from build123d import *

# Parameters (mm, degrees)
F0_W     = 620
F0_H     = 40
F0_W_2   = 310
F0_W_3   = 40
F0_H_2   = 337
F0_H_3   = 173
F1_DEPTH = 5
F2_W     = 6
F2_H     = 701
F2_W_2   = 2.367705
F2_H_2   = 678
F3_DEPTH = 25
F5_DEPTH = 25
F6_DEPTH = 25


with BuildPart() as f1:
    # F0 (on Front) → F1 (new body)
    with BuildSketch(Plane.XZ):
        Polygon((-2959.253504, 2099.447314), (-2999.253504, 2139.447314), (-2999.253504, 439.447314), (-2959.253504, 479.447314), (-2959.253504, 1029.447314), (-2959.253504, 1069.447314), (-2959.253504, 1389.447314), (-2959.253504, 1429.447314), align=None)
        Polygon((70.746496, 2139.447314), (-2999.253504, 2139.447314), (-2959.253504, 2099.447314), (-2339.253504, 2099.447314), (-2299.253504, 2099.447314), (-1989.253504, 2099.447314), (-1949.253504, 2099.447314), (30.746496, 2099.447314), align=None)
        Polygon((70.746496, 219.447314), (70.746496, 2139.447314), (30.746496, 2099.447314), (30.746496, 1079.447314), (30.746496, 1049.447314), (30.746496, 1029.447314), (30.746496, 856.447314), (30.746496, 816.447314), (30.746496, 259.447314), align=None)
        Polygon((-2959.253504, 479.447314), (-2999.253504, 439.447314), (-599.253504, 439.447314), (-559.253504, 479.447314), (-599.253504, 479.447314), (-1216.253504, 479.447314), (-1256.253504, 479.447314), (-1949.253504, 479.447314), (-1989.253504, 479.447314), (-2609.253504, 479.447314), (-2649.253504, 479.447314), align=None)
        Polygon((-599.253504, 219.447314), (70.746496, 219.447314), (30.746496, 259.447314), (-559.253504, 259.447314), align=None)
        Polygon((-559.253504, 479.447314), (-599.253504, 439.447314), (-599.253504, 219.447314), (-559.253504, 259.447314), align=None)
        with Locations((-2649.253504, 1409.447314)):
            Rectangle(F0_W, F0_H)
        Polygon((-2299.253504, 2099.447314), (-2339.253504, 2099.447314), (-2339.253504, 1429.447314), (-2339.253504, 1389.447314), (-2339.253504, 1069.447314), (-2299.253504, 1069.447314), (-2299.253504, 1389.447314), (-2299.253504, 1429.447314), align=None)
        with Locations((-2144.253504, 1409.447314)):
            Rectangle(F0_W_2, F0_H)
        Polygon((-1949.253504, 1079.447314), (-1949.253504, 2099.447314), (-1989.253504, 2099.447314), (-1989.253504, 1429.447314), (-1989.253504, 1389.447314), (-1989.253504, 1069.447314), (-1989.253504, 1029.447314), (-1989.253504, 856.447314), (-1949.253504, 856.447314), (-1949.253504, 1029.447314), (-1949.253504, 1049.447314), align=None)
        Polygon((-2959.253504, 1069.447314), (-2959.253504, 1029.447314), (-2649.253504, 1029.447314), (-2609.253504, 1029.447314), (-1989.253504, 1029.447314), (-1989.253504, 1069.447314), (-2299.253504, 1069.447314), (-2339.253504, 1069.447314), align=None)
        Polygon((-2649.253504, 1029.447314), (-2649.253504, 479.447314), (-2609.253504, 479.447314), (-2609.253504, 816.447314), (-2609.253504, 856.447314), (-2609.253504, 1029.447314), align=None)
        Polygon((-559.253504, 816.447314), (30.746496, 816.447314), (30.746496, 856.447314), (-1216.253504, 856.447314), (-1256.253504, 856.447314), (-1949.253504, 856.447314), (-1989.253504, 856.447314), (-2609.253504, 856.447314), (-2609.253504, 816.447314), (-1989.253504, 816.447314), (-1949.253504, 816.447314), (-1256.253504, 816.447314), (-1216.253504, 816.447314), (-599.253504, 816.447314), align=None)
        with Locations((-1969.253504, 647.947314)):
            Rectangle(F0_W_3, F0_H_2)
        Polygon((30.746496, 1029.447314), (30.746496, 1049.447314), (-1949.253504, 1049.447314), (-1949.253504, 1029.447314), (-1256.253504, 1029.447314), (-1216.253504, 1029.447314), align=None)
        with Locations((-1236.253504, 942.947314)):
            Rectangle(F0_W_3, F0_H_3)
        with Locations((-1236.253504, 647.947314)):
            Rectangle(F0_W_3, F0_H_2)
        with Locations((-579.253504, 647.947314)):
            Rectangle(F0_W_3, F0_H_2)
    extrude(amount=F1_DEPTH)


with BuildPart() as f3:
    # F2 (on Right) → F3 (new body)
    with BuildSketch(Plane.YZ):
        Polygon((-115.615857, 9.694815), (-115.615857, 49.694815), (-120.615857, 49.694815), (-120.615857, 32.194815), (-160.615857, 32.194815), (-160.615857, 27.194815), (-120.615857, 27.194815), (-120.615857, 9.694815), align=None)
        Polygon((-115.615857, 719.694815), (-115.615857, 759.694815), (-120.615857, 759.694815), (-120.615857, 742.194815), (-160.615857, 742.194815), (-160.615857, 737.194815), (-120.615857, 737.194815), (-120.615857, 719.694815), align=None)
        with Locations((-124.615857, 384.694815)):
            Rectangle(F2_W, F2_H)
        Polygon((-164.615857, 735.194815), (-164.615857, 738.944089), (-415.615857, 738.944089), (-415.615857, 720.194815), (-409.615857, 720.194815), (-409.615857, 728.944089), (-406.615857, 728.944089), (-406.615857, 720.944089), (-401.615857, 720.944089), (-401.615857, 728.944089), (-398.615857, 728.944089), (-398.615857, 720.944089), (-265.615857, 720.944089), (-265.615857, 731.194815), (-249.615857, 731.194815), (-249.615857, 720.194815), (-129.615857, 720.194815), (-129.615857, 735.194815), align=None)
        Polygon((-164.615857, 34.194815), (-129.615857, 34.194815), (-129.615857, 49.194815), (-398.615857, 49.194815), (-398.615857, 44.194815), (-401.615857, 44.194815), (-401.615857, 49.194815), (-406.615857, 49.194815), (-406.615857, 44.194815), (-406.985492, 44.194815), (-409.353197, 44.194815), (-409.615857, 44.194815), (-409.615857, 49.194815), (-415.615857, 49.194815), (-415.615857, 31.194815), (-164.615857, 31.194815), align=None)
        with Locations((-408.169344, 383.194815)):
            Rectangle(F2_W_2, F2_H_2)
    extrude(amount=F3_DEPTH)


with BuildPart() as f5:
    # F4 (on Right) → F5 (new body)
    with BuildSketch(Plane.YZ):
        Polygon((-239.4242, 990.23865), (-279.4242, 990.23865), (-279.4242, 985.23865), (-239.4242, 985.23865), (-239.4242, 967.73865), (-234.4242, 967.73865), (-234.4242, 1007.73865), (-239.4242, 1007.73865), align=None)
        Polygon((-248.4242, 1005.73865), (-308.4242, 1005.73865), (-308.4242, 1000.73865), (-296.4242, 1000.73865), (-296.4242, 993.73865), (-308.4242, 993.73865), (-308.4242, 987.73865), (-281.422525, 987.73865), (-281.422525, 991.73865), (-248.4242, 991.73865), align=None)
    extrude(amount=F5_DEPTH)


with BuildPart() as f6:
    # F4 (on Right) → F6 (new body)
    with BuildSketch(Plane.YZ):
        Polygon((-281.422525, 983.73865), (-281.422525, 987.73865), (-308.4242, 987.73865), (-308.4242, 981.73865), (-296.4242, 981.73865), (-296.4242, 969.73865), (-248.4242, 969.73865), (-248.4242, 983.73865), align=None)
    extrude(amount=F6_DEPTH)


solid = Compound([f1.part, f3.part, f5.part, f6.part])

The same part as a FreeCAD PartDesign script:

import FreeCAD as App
import Part
import Sketcher

doc = App.newDocument("Part")
body = doc.addObject("PartDesign::Body", "Body")

# Sketch on XZ plane
sketch1 = body.newObject("Sketcher::SketchObject", "Sketch")
sketch1.AttachmentSupport = (doc.getObject("XZ_Plane"), [""])
sketch1.MapMode = "FlatFace"
sketch1.addGeometry([
    Part.LineSegment(App.Vector(-2999.253504, 2139.447314, 0), App.Vector(-2999.253504, 439.447314, 0)),  # 0
    Part.LineSegment(App.Vector(-2999.253504, 439.447314, 0), App.Vector(-599.253504, 439.447314, 0)),  # 1
    Part.LineSegment(App.Vector(-599.253504, 439.447314, 0), App.Vector(-599.253504, 219.447314, 0)),  # 2
    Part.LineSegment(App.Vector(-599.253504, 219.447314, 0), App.Vector(70.746496, 219.447314, 0)),  # 3
    Part.LineSegment(App.Vector(70.746496, 219.447314, 0), App.Vector(70.746496, 2139.447314, 0)),  # 4
    Part.LineSegment(App.Vector(70.746496, 2139.447314, 0), App.Vector(-2999.253504, 2139.447314, 0)),  # 5
    Part.LineSegment(App.Vector(-599.253504, 479.447314, 0), App.Vector(-1216.253504, 479.447314, 0)),  # 6
    Part.LineSegment(App.Vector(-1216.253504, 479.447314, 0), App.Vector(-1216.253504, 816.447314, 0)),  # 7
    Part.LineSegment(App.Vector(-1216.253504, 816.447314, 0), App.Vector(-599.253504, 816.447314, 0)),  # 8
    Part.LineSegment(App.Vector(-599.253504, 816.447314, 0), App.Vector(-599.253504, 479.447314, 0)),  # 9
    Part.LineSegment(App.Vector(-559.253504, 816.447314, 0), App.Vector(30.746496, 816.447314, 0)),  # 10
    Part.LineSegment(App.Vector(30.746496, 816.447314, 0), App.Vector(30.746496, 259.447314, 0)),  # 11
    Part.LineSegment(App.Vector(30.746496, 259.447314, 0), App.Vector(-559.253504, 259.447314, 0)),  # 12
    Part.LineSegment(App.Vector(-559.253504, 259.447314, 0), App.Vector(-559.253504, 816.447314, 0)),  # 13
    Part.LineSegment(App.Vector(-1256.253504, 479.447314, 0), App.Vector(-1949.253504, 479.447314, 0)),  # 14
    Part.LineSegment(App.Vector(-1949.253504, 479.447314, 0), App.Vector(-1949.253504, 816.447314, 0)),  # 15
    Part.LineSegment(App.Vector(-1949.253504, 816.447314, 0), App.Vector(-1256.253504, 816.447314, 0)),  # 16
    Part.LineSegment(App.Vector(-1256.253504, 816.447314, 0), App.Vector(-1256.253504, 479.447314, 0)),  # 17
    Part.LineSegment(App.Vector(-1989.253504, 479.447314, 0), App.Vector(-2609.253504, 479.447314, 0)),  # 18
    Part.LineSegment(App.Vector(-2609.253504, 479.447314, 0), App.Vector(-2609.253504, 816.447314, 0)),  # 19
    Part.LineSegment(App.Vector(-2609.253504, 816.447314, 0), App.Vector(-1989.253504, 816.447314, 0)),  # 20
    Part.LineSegment(App.Vector(-1989.253504, 816.447314, 0), App.Vector(-1989.253504, 479.447314, 0)),  # 21
    Part.LineSegment(App.Vector(-2609.253504, 856.447314, 0), App.Vector(-2609.253504, 1029.447314, 0)),  # 22
    Part.LineSegment(App.Vector(-2609.253504, 1029.447314, 0), App.Vector(-1989.253504, 1029.447314, 0)),  # 23
    Part.LineSegment(App.Vector(-1989.253504, 1029.447314, 0), App.Vector(-1989.253504, 856.447314, 0)),  # 24
    Part.LineSegment(App.Vector(-1989.253504, 856.447314, 0), App.Vector(-2609.253504, 856.447314, 0)),  # 25
    Part.LineSegment(App.Vector(-1949.253504, 856.447314, 0), App.Vector(-1949.253504, 1029.447314, 0)),  # 26
    Part.LineSegment(App.Vector(-1949.253504, 1029.447314, 0), App.Vector(-1256.253504, 1029.447314, 0)),  # 27
    Part.LineSegment(App.Vector(-1256.253504, 1029.447314, 0), App.Vector(-1256.253504, 856.447314, 0)),  # 28
    Part.LineSegment(App.Vector(-1256.253504, 856.447314, 0), App.Vector(-1949.253504, 856.447314, 0)),  # 29
    Part.LineSegment(App.Vector(-1216.253504, 1029.447314, 0), App.Vector(30.746496, 1029.447314, 0)),  # 30
    Part.LineSegment(App.Vector(30.746496, 1029.447314, 0), App.Vector(30.746496, 856.447314, 0)),  # 31
    Part.LineSegment(App.Vector(30.746496, 856.447314, 0), App.Vector(-1216.253504, 856.447314, 0)),  # 32
    Part.LineSegment(App.Vector(-1216.253504, 856.447314, 0), App.Vector(-1216.253504, 1029.447314, 0)),  # 33
    Part.LineSegment(App.Vector(-1949.253504, 1049.447314, 0), App.Vector(-1949.253504, 2099.447314, 0)),  # 34
    Part.LineSegment(App.Vector(-1949.253504, 2099.447314, 0), App.Vector(30.746496, 2099.447314, 0)),  # 35
    Part.LineSegment(App.Vector(30.746496, 2099.447314, 0), App.Vector(30.746496, 1049.447314, 0)),  # 36
    Part.LineSegment(App.Vector(30.746496, 1049.447314, 0), App.Vector(-1949.253504, 1049.447314, 0)),  # 37
    Part.LineSegment(App.Vector(-2649.253504, 479.447314, 0), App.Vector(-2959.253504, 479.447314, 0)),  # 38
    Part.LineSegment(App.Vector(-2959.253504, 479.447314, 0), App.Vector(-2959.253504, 1029.447314, 0)),  # 39
    Part.LineSegment(App.Vector(-2959.253504, 1029.447314, 0), App.Vector(-2649.253504, 1029.447314, 0)),  # 40
    Part.LineSegment(App.Vector(-2649.253504, 1029.447314, 0), App.Vector(-2649.253504, 479.447314, 0)),  # 41
    Part.LineSegment(App.Vector(-2959.253504, 1069.447314, 0), App.Vector(-2959.253504, 1389.447314, 0)),  # 42
    Part.LineSegment(App.Vector(-2959.253504, 1389.447314, 0), App.Vector(-2339.253504, 1389.447314, 0)),  # 43
    Part.LineSegment(App.Vector(-2339.253504, 1389.447314, 0), App.Vector(-2339.253504, 1069.447314, 0)),  # 44
    Part.LineSegment(App.Vector(-2339.253504, 1069.447314, 0), App.Vector(-2959.253504, 1069.447314, 0)),  # 45
    Part.LineSegment(App.Vector(-2299.253504, 1069.447314, 0), App.Vector(-2299.253504, 1389.447314, 0)),  # 46
    Part.LineSegment(App.Vector(-2299.253504, 1389.447314, 0), App.Vector(-1989.253504, 1389.447314, 0)),  # 47
    Part.LineSegment(App.Vector(-1989.253504, 1389.447314, 0), App.Vector(-1989.253504, 1069.447314, 0)),  # 48
    Part.LineSegment(App.Vector(-1989.253504, 1069.447314, 0), App.Vector(-2299.253504, 1069.447314, 0)),  # 49
    Part.LineSegment(App.Vector(-1989.253504, 1429.447314, 0), App.Vector(-2299.253504, 1429.447314, 0)),  # 50
    Part.LineSegment(App.Vector(-2299.253504, 1429.447314, 0), App.Vector(-2299.253504, 2099.447314, 0)),  # 51
    Part.LineSegment(App.Vector(-2299.253504, 2099.447314, 0), App.Vector(-1989.253504, 2099.447314, 0)),  # 52
    Part.LineSegment(App.Vector(-1989.253504, 2099.447314, 0), App.Vector(-1989.253504, 1429.447314, 0)),  # 53
    Part.LineSegment(App.Vector(-2339.253504, 1429.447314, 0), App.Vector(-2959.253504, 1429.447314, 0)),  # 54
    Part.LineSegment(App.Vector(-2959.253504, 1429.447314, 0), App.Vector(-2959.253504, 2099.447314, 0)),  # 55
    Part.LineSegment(App.Vector(-2959.253504, 2099.447314, 0), App.Vector(-2339.253504, 2099.447314, 0)),  # 56
    Part.LineSegment(App.Vector(-2339.253504, 2099.447314, 0), App.Vector(-2339.253504, 1429.447314, 0)),  # 57
], False)
sketch1.addConstraint([
    Sketcher.Constraint("Coincident", 0, 2, 1, 1),
    Sketcher.Constraint("Coincident", 1, 2, 2, 1),
    Sketcher.Constraint("Coincident", 2, 2, 3, 1),
    Sketcher.Constraint("Coincident", 3, 2, 4, 1),
    Sketcher.Constraint("Coincident", 4, 2, 5, 1),
    Sketcher.Constraint("Coincident", 5, 2, 0, 1),
    Sketcher.Constraint("Coincident", 6, 2, 7, 1),
    Sketcher.Constraint("Coincident", 7, 2, 8, 1),
    Sketcher.Constraint("Coincident", 8, 2, 9, 1),
    Sketcher.Constraint("Coincident", 9, 2, 6, 1),
    Sketcher.Constraint("Coincident", 10, 2, 11, 1),
    Sketcher.Constraint("Coincident", 11, 2, 12, 1),
    Sketcher.Constraint("Coincident", 12, 2, 13, 1),
    Sketcher.Constraint("Coincident", 13, 2, 10, 1),
    Sketcher.Constraint("Coincident", 14, 2, 15, 1),
    Sketcher.Constraint("Coincident", 15, 2, 16, 1),
    Sketcher.Constraint("Coincident", 16, 2, 17, 1),
    Sketcher.Constraint("Coincident", 17, 2, 14, 1),
    Sketcher.Constraint("Coincident", 18, 2, 19, 1),
    Sketcher.Constraint("Coincident", 19, 2, 20, 1),
    Sketcher.Constraint("Coincident", 20, 2, 21, 1),
    Sketcher.Constraint("Coincident", 21, 2, 18, 1),
    Sketcher.Constraint("Coincident", 22, 2, 23, 1),
    Sketcher.Constraint("Coincident", 23, 2, 24, 1),
    Sketcher.Constraint("Coincident", 24, 2, 25, 1),
    Sketcher.Constraint("Coincident", 25, 2, 22, 1),
    Sketcher.Constraint("Coincident", 26, 2, 27, 1),
    Sketcher.Constraint("Coincident", 27, 2, 28, 1),
    Sketcher.Constraint("Coincident", 28, 2, 29, 1),
    Sketcher.Constraint("Coincident", 29, 2, 26, 1),
    Sketcher.Constraint("Coincident", 30, 2, 31, 1),
    Sketcher.Constraint("Coincident", 31, 2, 32, 1),
    Sketcher.Constraint("Coincident", 32, 2, 33, 1),
    Sketcher.Constraint("Coincident", 33, 2, 30, 1),
    Sketcher.Constraint("Coincident", 34, 2, 35, 1),
    Sketcher.Constraint("Coincident", 35, 2, 36, 1),
    Sketcher.Constraint("Coincident", 36, 2, 37, 1),
    Sketcher.Constraint("Coincident", 37, 2, 34, 1),
    Sketcher.Constraint("Coincident", 38, 2, 39, 1),
    Sketcher.Constraint("Coincident", 39, 2, 40, 1),
    Sketcher.Constraint("Coincident", 40, 2, 41, 1),
    Sketcher.Constraint("Coincident", 41, 2, 38, 1),
    Sketcher.Constraint("Coincident", 42, 2, 43, 1),
    Sketcher.Constraint("Coincident", 43, 2, 44, 1),
    Sketcher.Constraint("Coincident", 44, 2, 45, 1),
    Sketcher.Constraint("Coincident", 45, 2, 42, 1),
    Sketcher.Constraint("Coincident", 46, 2, 47, 1),
    Sketcher.Constraint("Coincident", 47, 2, 48, 1),
    Sketcher.Constraint("Coincident", 48, 2, 49, 1),
    Sketcher.Constraint("Coincident", 49, 2, 46, 1),
    Sketcher.Constraint("Coincident", 50, 2, 51, 1),
    Sketcher.Constraint("Coincident", 51, 2, 52, 1),
    Sketcher.Constraint("Coincident", 52, 2, 53, 1),
    Sketcher.Constraint("Coincident", 53, 2, 50, 1),
    Sketcher.Constraint("Coincident", 54, 2, 55, 1),
    Sketcher.Constraint("Coincident", 55, 2, 56, 1),
    Sketcher.Constraint("Coincident", 56, 2, 57, 1),
    Sketcher.Constraint("Coincident", 57, 2, 54, 1),
    Sketcher.Constraint("Vertical", 0),
    Sketcher.Constraint("Horizontal", 1),
    Sketcher.Constraint("Vertical", 2),
    Sketcher.Constraint("Horizontal", 3),
    Sketcher.Constraint("Vertical", 4),
    Sketcher.Constraint("Horizontal", 5),
    Sketcher.Constraint("Horizontal", 6),
    Sketcher.Constraint("Vertical", 7),
    Sketcher.Constraint("Horizontal", 8),
    Sketcher.Constraint("Vertical", 9),
    Sketcher.Constraint("Horizontal", 10),
    Sketcher.Constraint("Vertical", 11),
    Sketcher.Constraint("Horizontal", 12),
    Sketcher.Constraint("Vertical", 13),
    Sketcher.Constraint("Horizontal", 14),
    Sketcher.Constraint("Vertical", 15),
    Sketcher.Constraint("Horizontal", 16),
    Sketcher.Constraint("Vertical", 17),
    Sketcher.Constraint("Horizontal", 18),
    Sketcher.Constraint("Vertical", 19),
    Sketcher.Constraint("Horizontal", 20),
    Sketcher.Constraint("Vertical", 21),
    Sketcher.Constraint("Vertical", 22),
    Sketcher.Constraint("Horizontal", 23),
    Sketcher.Constraint("Vertical", 24),
    Sketcher.Constraint("Horizontal", 25),
    Sketcher.Constraint("Vertical", 26),
    Sketcher.Constraint("Horizontal", 27),
    Sketcher.Constraint("Vertical", 28),
    Sketcher.Constraint("Horizontal", 29),
    Sketcher.Constraint("Horizontal", 30),
    Sketcher.Constraint("Vertical", 31),
    Sketcher.Constraint("Horizontal", 32),
    Sketcher.Constraint("Vertical", 33),
    Sketcher.Constraint("Vertical", 34),
    Sketcher.Constraint("Horizontal", 35),
    Sketcher.Constraint("Vertical", 36),
    Sketcher.Constraint("Horizontal", 37),
    Sketcher.Constraint("Horizontal", 38),
    Sketcher.Constraint("Vertical", 39),
    Sketcher.Constraint("Horizontal", 40),
    Sketcher.Constraint("Vertical", 41),
    Sketcher.Constraint("Vertical", 42),
    Sketcher.Constraint("Horizontal", 43),
    Sketcher.Constraint("Vertical", 44),
    Sketcher.Constraint("Horizontal", 45),
    Sketcher.Constraint("Vertical", 46),
    Sketcher.Constraint("Horizontal", 47),
    Sketcher.Constraint("Vertical", 48),
    Sketcher.Constraint("Horizontal", 49),
    Sketcher.Constraint("Horizontal", 50),
    Sketcher.Constraint("Vertical", 51),
    Sketcher.Constraint("Horizontal", 52),
    Sketcher.Constraint("Vertical", 53),
    Sketcher.Constraint("Horizontal", 54),
    Sketcher.Constraint("Vertical", 55),
    Sketcher.Constraint("Horizontal", 56),
    Sketcher.Constraint("Vertical", 57),
    Sketcher.Constraint("Horizontal", 8, 2, 10, 2),
    Sketcher.Constraint("Horizontal", 9, 2, 14, 2),
    Sketcher.Constraint("Horizontal", 13, 2, 15, 2),
    Sketcher.Constraint("Horizontal", 17, 2, 18, 2),
    Sketcher.Constraint("Horizontal", 16, 2, 19, 2),
    Sketcher.Constraint("Horizontal", 23, 2, 26, 2),
    Sketcher.Constraint("Horizontal", 25, 2, 28, 2),
    Sketcher.Constraint("Horizontal", 27, 2, 30, 2),
    Sketcher.Constraint("Horizontal", 29, 2, 31, 2),
    Sketcher.Constraint("Horizontal", 21, 2, 38, 2),
    Sketcher.Constraint("Horizontal", 33, 2, 39, 2),
    Sketcher.Constraint("Horizontal", 43, 2, 46, 2),
    Sketcher.Constraint("Horizontal", 45, 2, 48, 2),
    Sketcher.Constraint("Horizontal", 35, 2, 51, 2),
    Sketcher.Constraint("Horizontal", 53, 2, 54, 2),
    Sketcher.Constraint("Horizontal", 52, 2, 55, 2),
    Sketcher.Constraint("Vertical", 2, 2, 8, 2),
    Sketcher.Constraint("Vertical", 19, 2, 22, 2),
    Sketcher.Constraint("Vertical", 21, 2, 23, 2),
    Sketcher.Constraint("Vertical", 15, 2, 26, 2),
    Sketcher.Constraint("Vertical", 17, 2, 27, 2),
    Sketcher.Constraint("Vertical", 11, 2, 30, 2),
    Sketcher.Constraint("Vertical", 7, 2, 32, 2),
    Sketcher.Constraint("Vertical", 29, 2, 34, 2),
    Sketcher.Constraint("Vertical", 31, 2, 35, 2),
    Sketcher.Constraint("Vertical", 39, 2, 42, 2),
    Sketcher.Constraint("Vertical", 24, 2, 47, 2),
    Sketcher.Constraint("Vertical", 49, 2, 50, 2),
    Sketcher.Constraint("Vertical", 48, 2, 52, 2),
    Sketcher.Constraint("Vertical", 45, 2, 54, 2),
    Sketcher.Constraint("Vertical", 44, 2, 56, 2),
    Sketcher.Constraint("Equal", 25, 43),
    Sketcher.Constraint("Equal", 40, 47),
    Sketcher.Constraint("Equal", 3, 51),
    Sketcher.Constraint("DistanceX", 1, 1, 1, 2, 2400.0),
    Sketcher.Constraint("DistanceX", 3, 1, 3, 2, 670.0),
    Sketcher.Constraint("DistanceX", 6, 2, 6, 1, 617.0),
    Sketcher.Constraint("DistanceX", 10, 1, 10, 2, 590.0),
    Sketcher.Constraint("DistanceX", 14, 2, 14, 1, 693.0),
    Sketcher.Constraint("DistanceX", 18, 2, 18, 1, 620.0),
    Sketcher.Constraint("DistanceX", 30, 1, 30, 2, 1247.0),
    Sketcher.Constraint("DistanceX", 35, 1, 35, 2, 1980.0),
    Sketcher.Constraint("DistanceX", 38, 2, 38, 1, 310.0),
    Sketcher.Constraint("DistanceY", 0, 2, 0, 1, 1700.0),
    Sketcher.Constraint("DistanceY", 2, 2, 2, 1, 220.0),
    Sketcher.Constraint("DistanceY", 7, 1, 7, 2, 337.0),
    Sketcher.Constraint("DistanceY", 11, 2, 11, 1, 557.0),
    Sketcher.Constraint("DistanceY", 22, 1, 22, 2, 173.0),
    Sketcher.Constraint("DistanceY", 34, 1, 34, 2, 1050.0),
    Sketcher.Constraint("DistanceY", 39, 1, 39, 2, 550.0),
    Sketcher.Constraint("DistanceY", 42, 1, 42, 2, 320.0),
    Sketcher.Constraint("DistanceY", 1, 2, 6, 2, 40.0),
    Sketcher.Constraint("DistanceX", 0, 2, 18, 2, 390.0),
    Sketcher.Constraint("DistanceY", 34, 2, 5, 2, 40.0),
    Sketcher.Constraint("DistanceX", 0, 2, 38, 2, 40.0),
    Sketcher.Constraint("DistanceY", 39, 2, 42, 2, 360.0),
    Sketcher.Constraint("DistanceX", 0, 2, -1, 1, 2999.253504),
    Sketcher.Constraint("DistanceY", -1, 1, 0, 2, 439.447314),
])
pad1 = body.newObject("PartDesign::Pad", "Pad")
pad1.Profile = sketch1
pad1.Length = 5
body2 = doc.addObject("PartDesign::Body", "Body001")
body2.AllowCompound = True

# Sketch on YZ plane
sketch2 = body2.newObject("Sketcher::SketchObject", "Sketch001")
sketch2.AttachmentSupport = (doc.getObject("YZ_Plane001"), [""])
sketch2.MapMode = "FlatFace"
sketch2.addGeometry([
    Part.LineSegment(App.Vector(-115.615857, 9.694815, 0), App.Vector(-115.615857, 49.694815, 0)),  # 0
    Part.LineSegment(App.Vector(-115.615857, 49.694815, 0), App.Vector(-120.615857, 49.694815, 0)),  # 1
    Part.LineSegment(App.Vector(-120.615857, 49.694815, 0), App.Vector(-120.615857, 32.194815, 0)),  # 2
    Part.LineSegment(App.Vector(-120.615857, 32.194815, 0), App.Vector(-160.615857, 32.194815, 0)),  # 3
    Part.LineSegment(App.Vector(-160.615857, 32.194815, 0), App.Vector(-160.615857, 27.194815, 0)),  # 4
    Part.LineSegment(App.Vector(-160.615857, 27.194815, 0), App.Vector(-120.615857, 27.194815, 0)),  # 5
    Part.LineSegment(App.Vector(-120.615857, 27.194815, 0), App.Vector(-120.615857, 9.694815, 0)),  # 6
    Part.LineSegment(App.Vector(-120.615857, 9.694815, 0), App.Vector(-115.615857, 9.694815, 0)),  # 7
    Part.LineSegment(App.Vector(-115.615857, 719.694815, 0), App.Vector(-115.615857, 759.694815, 0)),  # 8
    Part.LineSegment(App.Vector(-115.615857, 759.694815, 0), App.Vector(-120.615857, 759.694815, 0)),  # 9
    Part.LineSegment(App.Vector(-120.615857, 759.694815, 0), App.Vector(-120.615857, 742.194815, 0)),  # 10
    Part.LineSegment(App.Vector(-120.615857, 742.194815, 0), App.Vector(-160.615857, 742.194815, 0)),  # 11
    Part.LineSegment(App.Vector(-160.615857, 742.194815, 0), App.Vector(-160.615857, 737.194815, 0)),  # 12
    Part.LineSegment(App.Vector(-160.615857, 737.194815, 0), App.Vector(-120.615857, 737.194815, 0)),  # 13
    Part.LineSegment(App.Vector(-120.615857, 737.194815, 0), App.Vector(-120.615857, 719.694815, 0)),  # 14
    Part.LineSegment(App.Vector(-120.615857, 719.694815, 0), App.Vector(-115.615857, 719.694815, 0)),  # 15
    Part.LineSegment(App.Vector(-127.615857, 735.194815, 0), App.Vector(-127.615857, 34.194815, 0)),  # 16
    Part.LineSegment(App.Vector(-127.615857, 34.194815, 0), App.Vector(-121.615857, 34.194815, 0)),  # 17
    Part.LineSegment(App.Vector(-121.615857, 34.194815, 0), App.Vector(-121.615857, 735.194815, 0)),  # 18
    Part.LineSegment(App.Vector(-121.615857, 735.194815, 0), App.Vector(-127.615857, 735.194815, 0)),  # 19
    Part.LineSegment(App.Vector(-164.615857, 735.194815, 0), App.Vector(-164.615857, 738.944089, 0)),  # 20
    Part.LineSegment(App.Vector(-164.615857, 738.944089, 0), App.Vector(-415.615857, 738.944089, 0)),  # 21
    Part.LineSegment(App.Vector(-415.615857, 738.944089, 0), App.Vector(-415.615857, 720.194815, 0)),  # 22
    Part.LineSegment(App.Vector(-415.615857, 720.194815, 0), App.Vector(-409.615857, 720.194815, 0)),  # 23
    Part.LineSegment(App.Vector(-409.615857, 720.194815, 0), App.Vector(-409.615857, 728.944089, 0)),  # 24
    Part.LineSegment(App.Vector(-409.615857, 728.944089, 0), App.Vector(-406.615857, 728.944089, 0)),  # 25
    Part.LineSegment(App.Vector(-406.615857, 728.944089, 0), App.Vector(-406.615857, 720.944089, 0)),  # 26
    Part.LineSegment(App.Vector(-406.615857, 720.944089, 0), App.Vector(-401.615857, 720.944089, 0)),  # 27
    Part.LineSegment(App.Vector(-401.615857, 720.944089, 0), App.Vector(-401.615857, 728.944089, 0)),  # 28
    Part.LineSegment(App.Vector(-401.615857, 728.944089, 0), App.Vector(-398.615857, 728.944089, 0)),  # 29
    Part.LineSegment(App.Vector(-398.615857, 728.944089, 0), App.Vector(-398.615857, 720.944089, 0)),  # 30
    Part.LineSegment(App.Vector(-398.615857, 720.944089, 0), App.Vector(-265.615857, 720.944089, 0)),  # 31
    Part.LineSegment(App.Vector(-265.615857, 720.944089, 0), App.Vector(-265.615857, 731.194815, 0)),  # 32
    Part.LineSegment(App.Vector(-265.615857, 731.194815, 0), App.Vector(-249.615857, 731.194815, 0)),  # 33
    Part.LineSegment(App.Vector(-249.615857, 731.194815, 0), App.Vector(-249.615857, 720.194815, 0)),  # 34
    Part.LineSegment(App.Vector(-249.615857, 720.194815, 0), App.Vector(-129.615857, 720.194815, 0)),  # 35
    Part.LineSegment(App.Vector(-129.615857, 720.194815, 0), App.Vector(-129.615857, 735.194815, 0)),  # 36
    Part.LineSegment(App.Vector(-129.615857, 735.194815, 0), App.Vector(-164.615857, 735.194815, 0)),  # 37
    Part.LineSegment(App.Vector(-164.615857, 34.194815, 0), App.Vector(-129.615857, 34.194815, 0)),  # 38
    Part.LineSegment(App.Vector(-129.615857, 34.194815, 0), App.Vector(-129.615857, 49.194815, 0)),  # 39
    Part.LineSegment(App.Vector(-129.615857, 49.194815, 0), App.Vector(-398.615857, 49.194815, 0)),  # 40
    Part.LineSegment(App.Vector(-398.615857, 49.194815, 0), App.Vector(-398.615857, 44.194815, 0)),  # 41
    Part.LineSegment(App.Vector(-398.615857, 44.194815, 0), App.Vector(-401.615857, 44.194815, 0)),  # 42
    Part.LineSegment(App.Vector(-401.615857, 44.194815, 0), App.Vector(-401.615857, 49.194815, 0)),  # 43
    Part.LineSegment(App.Vector(-401.615857, 49.194815, 0), App.Vector(-406.615857, 49.194815, 0)),  # 44
    Part.LineSegment(App.Vector(-406.615857, 49.194815, 0), App.Vector(-406.615857, 44.194815, 0)),  # 45
    Part.LineSegment(App.Vector(-406.615857, 44.194815, 0), App.Vector(-406.985492, 44.194815, 0)),  # 46
    Part.LineSegment(App.Vector(-406.985492, 44.194815, 0), App.Vector(-406.985492, 722.194815, 0)),  # 47
    Part.LineSegment(App.Vector(-406.985492, 722.194815, 0), App.Vector(-409.353197, 722.194815, 0)),  # 48
    Part.LineSegment(App.Vector(-409.353197, 722.194815, 0), App.Vector(-409.353197, 44.194815, 0)),  # 49
    Part.LineSegment(App.Vector(-409.353197, 44.194815, 0), App.Vector(-409.615857, 44.194815, 0)),  # 50
    Part.LineSegment(App.Vector(-409.615857, 44.194815, 0), App.Vector(-409.615857, 49.194815, 0)),  # 51
    Part.LineSegment(App.Vector(-409.615857, 49.194815, 0), App.Vector(-415.615857, 49.194815, 0)),  # 52
    Part.LineSegment(App.Vector(-415.615857, 49.194815, 0), App.Vector(-415.615857, 31.194815, 0)),  # 53
    Part.LineSegment(App.Vector(-415.615857, 31.194815, 0), App.Vector(-164.615857, 31.194815, 0)),  # 54
    Part.LineSegment(App.Vector(-164.615857, 31.194815, 0), App.Vector(-164.615857, 34.194815, 0)),  # 55
], False)
sketch2.addConstraint([
    Sketcher.Constraint("Coincident", 0, 2, 1, 1),
    Sketcher.Constraint("Coincident", 1, 2, 2, 1),
    Sketcher.Constraint("Coincident", 2, 2, 3, 1),
    Sketcher.Constraint("Coincident", 3, 2, 4, 1),
    Sketcher.Constraint("Coincident", 4, 2, 5, 1),
    Sketcher.Constraint("Coincident", 5, 2, 6, 1),
    Sketcher.Constraint("Coincident", 6, 2, 7, 1),
    Sketcher.Constraint("Coincident", 7, 2, 0, 1),
    Sketcher.Constraint("Coincident", 8, 2, 9, 1),
    Sketcher.Constraint("Coincident", 9, 2, 10, 1),
    Sketcher.Constraint("Coincident", 10, 2, 11, 1),
    Sketcher.Constraint("Coincident", 11, 2, 12, 1),
    Sketcher.Constraint("Coincident", 12, 2, 13, 1),
    Sketcher.Constraint("Coincident", 13, 2, 14, 1),
    Sketcher.Constraint("Coincident", 14, 2, 15, 1),
    Sketcher.Constraint("Coincident", 15, 2, 8, 1),
    Sketcher.Constraint("Coincident", 16, 2, 17, 1),
    Sketcher.Constraint("Coincident", 17, 2, 18, 1),
    Sketcher.Constraint("Coincident", 18, 2, 19, 1),
    Sketcher.Constraint("Coincident", 19, 2, 16, 1),
    Sketcher.Constraint("Coincident", 20, 2, 21, 1),
    Sketcher.Constraint("Coincident", 21, 2, 22, 1),
    Sketcher.Constraint("Coincident", 22, 2, 23, 1),
    Sketcher.Constraint("Coincident", 23, 2, 24, 1),
    Sketcher.Constraint("Coincident", 24, 2, 25, 1),
    Sketcher.Constraint("Coincident", 25, 2, 26, 1),
    Sketcher.Constraint("Coincident", 26, 2, 27, 1),
    Sketcher.Constraint("Coincident", 27, 2, 28, 1),
    Sketcher.Constraint("Coincident", 28, 2, 29, 1),
    Sketcher.Constraint("Coincident", 29, 2, 30, 1),
    Sketcher.Constraint("Coincident", 30, 2, 31, 1),
    Sketcher.Constraint("Coincident", 31, 2, 32, 1),
    Sketcher.Constraint("Coincident", 32, 2, 33, 1),
    Sketcher.Constraint("Coincident", 33, 2, 34, 1),
    Sketcher.Constraint("Coincident", 34, 2, 35, 1),
    Sketcher.Constraint("Coincident", 35, 2, 36, 1),
    Sketcher.Constraint("Coincident", 36, 2, 37, 1),
    Sketcher.Constraint("Coincident", 37, 2, 20, 1),
    Sketcher.Constraint("Coincident", 38, 2, 39, 1),
    Sketcher.Constraint("Coincident", 39, 2, 40, 1),
    Sketcher.Constraint("Coincident", 40, 2, 41, 1),
    Sketcher.Constraint("Coincident", 41, 2, 42, 1),
    Sketcher.Constraint("Coincident", 42, 2, 43, 1),
    Sketcher.Constraint("Coincident", 43, 2, 44, 1),
    Sketcher.Constraint("Coincident", 44, 2, 45, 1),
    Sketcher.Constraint("Coincident", 45, 2, 46, 1),
    Sketcher.Constraint("Coincident", 46, 2, 47, 1),
    Sketcher.Constraint("Coincident", 47, 2, 48, 1),
    Sketcher.Constraint("Coincident", 48, 2, 49, 1),
    Sketcher.Constraint("Coincident", 49, 2, 50, 1),
    Sketcher.Constraint("Coincident", 50, 2, 51, 1),
    Sketcher.Constraint("Coincident", 51, 2, 52, 1),
    Sketcher.Constraint("Coincident", 52, 2, 53, 1),
    Sketcher.Constraint("Coincident", 53, 2, 54, 1),
    Sketcher.Constraint("Coincident", 54, 2, 55, 1),
    Sketcher.Constraint("Coincident", 55, 2, 38, 1),
    Sketcher.Constraint("Vertical", 0),
    Sketcher.Constraint("Horizontal", 1),
    Sketcher.Constraint("Vertical", 2),
    Sketcher.Constraint("Horizontal", 3),
    Sketcher.Constraint("Vertical", 4),
    Sketcher.Constraint("Horizontal", 5),
    Sketcher.Constraint("Vertical", 6),
    Sketcher.Constraint("Horizontal", 7),
    Sketcher.Constraint("Vertical", 8),
    Sketcher.Constraint("Horizontal", 9),
    Sketcher.Constraint("Vertical", 10),
    Sketcher.Constraint("Horizontal", 11),
    Sketcher.Constraint("Vertical", 12),
    Sketcher.Constraint("Horizontal", 13),
    Sketcher.Constraint("Vertical", 14),
    Sketcher.Constraint("Horizontal", 15),
    Sketcher.Constraint("Vertical", 16),
    Sketcher.Constraint("Horizontal", 17),
    Sketcher.Constraint("Vertical", 18),
    Sketcher.Constraint("Horizontal", 19),
    Sketcher.Constraint("Vertical", 20),
    Sketcher.Constraint("Horizontal", 21),
    Sketcher.Constraint("Vertical", 22),
    Sketcher.Constraint("Horizontal", 23),
    Sketcher.Constraint("Vertical", 24),
    Sketcher.Constraint("Horizontal", 25),
    Sketcher.Constraint("Vertical", 26),
    Sketcher.Constraint("Horizontal", 27),
    Sketcher.Constraint("Vertical", 28),
    Sketcher.Constraint("Horizontal", 29),
    Sketcher.Constraint("Vertical", 30),
    Sketcher.Constraint("Horizontal", 31),
    Sketcher.Constraint("Vertical", 32),
    Sketcher.Constraint("Horizontal", 33),
    Sketcher.Constraint("Vertical", 34),
    Sketcher.Constraint("Horizontal", 35),
    Sketcher.Constraint("Vertical", 36),
    Sketcher.Constraint("Horizontal", 37),
    Sketcher.Constraint("Horizontal", 38),
    Sketcher.Constraint("Vertical", 39),
    Sketcher.Constraint("Horizontal", 40),
    Sketcher.Constraint("Vertical", 41),
    Sketcher.Constraint("Horizontal", 42),
    Sketcher.Constraint("Vertical", 43),
    Sketcher.Constraint("Horizontal", 44),
    Sketcher.Constraint("Vertical", 45),
    Sketcher.Constraint("Horizontal", 46),
    Sketcher.Constraint("Vertical", 47),
    Sketcher.Constraint("Horizontal", 48),
    Sketcher.Constraint("Vertical", 49),
    Sketcher.Constraint("Horizontal", 50),
    Sketcher.Constraint("Vertical", 51),
    Sketcher.Constraint("Horizontal", 52),
    Sketcher.Constraint("Vertical", 53),
    Sketcher.Constraint("Horizontal", 54),
    Sketcher.Constraint("Vertical", 55),
    Sketcher.Constraint("Horizontal", 25, 2, 28, 2),
    Sketcher.Constraint("Horizontal", 27, 2, 30, 2),
    Sketcher.Constraint("Horizontal", 23, 2, 34, 2),
    Sketcher.Constraint("Horizontal", 19, 2, 36, 2),
    Sketcher.Constraint("Horizontal", 17, 2, 38, 2),
    Sketcher.Constraint("Horizontal", 40, 2, 43, 2),
    Sketcher.Constraint("Horizontal", 42, 2, 45, 2),
    Sketcher.Constraint("Horizontal", 46, 2, 49, 2),
    Sketcher.Constraint("Horizontal", 44, 2, 51, 2),
    Sketcher.Constraint("Vertical", 2, 2, 5, 2),
    Sketcher.Constraint("Vertical", 7, 2, 8, 2),
    Sketcher.Constraint("Vertical", 6, 2, 9, 2),
    Sketcher.Constraint("Vertical", 4, 2, 11, 2),
    Sketcher.Constraint("Vertical", 10, 2, 13, 2),
    Sketcher.Constraint("Vertical", 36, 2, 38, 2),
    Sketcher.Constraint("Vertical", 30, 2, 40, 2),
    Sketcher.Constraint("Vertical", 28, 2, 42, 2),
    Sketcher.Constraint("Vertical", 26, 2, 44, 2),
    Sketcher.Constraint("Vertical", 24, 2, 50, 2),
    Sketcher.Constraint("Vertical", 22, 2, 52, 2),
    Sketcher.Constraint("Vertical", 37, 2, 54, 2),
    Sketcher.Constraint("Equal", 19, 23),
    Sketcher.Constraint("Equal", 15, 27),
    Sketcher.Constraint("Equal", 25, 29),
    Sketcher.Constraint("Equal", 13, 0),
    Sketcher.Constraint("Equal", 44, 4),
    Sketcher.Constraint("Equal", 2, 6),
    Sketcher.Constraint("Equal", 0, 8),
    Sketcher.Constraint("Equal", 6, 10),
    Sketcher.Constraint("Equal", 4, 12),
    Sketcher.Constraint("Equal", 36, 39),
    Sketcher.Constraint("Equal", 12, 41),
    Sketcher.Constraint("Equal", 42, 55),
    Sketcher.Constraint("DistanceX", 1, 2, 1, 1, 5.0),
    Sketcher.Constraint("DistanceX", 3, 2, 3, 1, 40.0),
    Sketcher.Constraint("DistanceX", 17, 1, 17, 2, 6.0),
    Sketcher.Constraint("DistanceX", 21, 2, 21, 1, 251.0),
    Sketcher.Constraint("DistanceX", 25, 1, 25, 2, 3.0),
    Sketcher.Constraint("DistanceX", 31, 1, 31, 2, 133.0),
    Sketcher.Constraint("DistanceX", 33, 1, 33, 2, 16.0),
    Sketcher.Constraint("DistanceX", 35, 1, 35, 2, 120.0),
    Sketcher.Constraint("DistanceY", 16, 2, 16, 1, 701.0),
    Sketcher.Constraint("DistanceY", 26, 2, 26, 1, 8.0),
    Sketcher.Constraint("DistanceY", 34, 2, 34, 1, 11.0),
    Sketcher.Constraint("DistanceY", 36, 1, 36, 2, 15.0),
    Sketcher.Constraint("DistanceY", 47, 1, 47, 2, 678.0),
    Sketcher.Constraint("DistanceY", 0, 2, 8, 2, 710.0),
    Sketcher.Constraint("DistanceX", 16, 2, 2, 2, 7.0),
    Sketcher.Constraint("DistanceY", 2, 2, 16, 2, 2.0),
    Sketcher.Constraint("DistanceX", 20, 2, 12, 2, 4.0),
    Sketcher.Constraint("DistanceY", 24, 2, 21, 2, 10.0),
    Sketcher.Constraint("DistanceX", 50, 2, 50, 1, 0.26266),
    Sketcher.Constraint("DistanceX", 46, 2, 46, 1, 0.369635),
    Sketcher.Constraint("DistanceY", 20, 1, 20, 2, 3.749274),
    Sketcher.Constraint("DistanceY", -1, 1, 20, 2, 738.944089),
    Sketcher.Constraint("DistanceX", 46, 2, -1, 1, 406.985492),
])
pad2 = body2.newObject("PartDesign::Pad", "Pad001")
pad2.Profile = sketch2
pad2.Length = 25
body3 = doc.addObject("PartDesign::Body", "Body002")
body3.AllowCompound = True

# Sketch on YZ plane
sketch3 = body3.newObject("Sketcher::SketchObject", "Sketch002")
sketch3.AttachmentSupport = (doc.getObject("YZ_Plane002"), [""])
sketch3.MapMode = "FlatFace"
sketch3.addGeometry([
    Part.LineSegment(App.Vector(-239.4242, 990.23865, 0), App.Vector(-279.4242, 990.23865, 0)),  # 0
    Part.LineSegment(App.Vector(-279.4242, 990.23865, 0), App.Vector(-279.4242, 985.23865, 0)),  # 1
    Part.LineSegment(App.Vector(-279.4242, 985.23865, 0), App.Vector(-239.4242, 985.23865, 0)),  # 2
    Part.LineSegment(App.Vector(-239.4242, 985.23865, 0), App.Vector(-239.4242, 967.73865, 0)),  # 3
    Part.LineSegment(App.Vector(-239.4242, 967.73865, 0), App.Vector(-234.4242, 967.73865, 0)),  # 4
    Part.LineSegment(App.Vector(-234.4242, 967.73865, 0), App.Vector(-234.4242, 1007.73865, 0)),  # 5
    Part.LineSegment(App.Vector(-234.4242, 1007.73865, 0), App.Vector(-239.4242, 1007.73865, 0)),  # 6
    Part.LineSegment(App.Vector(-239.4242, 1007.73865, 0), App.Vector(-239.4242, 990.23865, 0)),  # 7
    Part.LineSegment(App.Vector(-248.4242, 1005.73865, 0), App.Vector(-308.4242, 1005.73865, 0)),  # 8
    Part.LineSegment(App.Vector(-308.4242, 1005.73865, 0), App.Vector(-308.4242, 1000.73865, 0)),  # 9
    Part.LineSegment(App.Vector(-308.4242, 1000.73865, 0), App.Vector(-296.4242, 1000.73865, 0)),  # 10
    Part.LineSegment(App.Vector(-296.4242, 1000.73865, 0), App.Vector(-296.4242, 993.73865, 0)),  # 11
    Part.LineSegment(App.Vector(-296.4242, 993.73865, 0), App.Vector(-308.4242, 993.73865, 0)),  # 12
    Part.LineSegment(App.Vector(-308.4242, 993.73865, 0), App.Vector(-308.4242, 987.73865, 0)),  # 13
    Part.LineSegment(App.Vector(-308.4242, 987.73865, 0), App.Vector(-281.422525, 987.73865, 0)),  # 14
    Part.LineSegment(App.Vector(-281.422525, 987.73865, 0), App.Vector(-281.422525, 991.73865, 0)),  # 15
    Part.LineSegment(App.Vector(-281.422525, 991.73865, 0), App.Vector(-248.4242, 991.73865, 0)),  # 16
    Part.LineSegment(App.Vector(-248.4242, 991.73865, 0), App.Vector(-248.4242, 1005.73865, 0)),  # 17
], False)
sketch3.addConstraint([
    Sketcher.Constraint("Coincident", 0, 2, 1, 1),
    Sketcher.Constraint("Coincident", 1, 2, 2, 1),
    Sketcher.Constraint("Coincident", 2, 2, 3, 1),
    Sketcher.Constraint("Coincident", 3, 2, 4, 1),
    Sketcher.Constraint("Coincident", 4, 2, 5, 1),
    Sketcher.Constraint("Coincident", 5, 2, 6, 1),
    Sketcher.Constraint("Coincident", 6, 2, 7, 1),
    Sketcher.Constraint("Coincident", 7, 2, 0, 1),
    Sketcher.Constraint("Coincident", 8, 2, 9, 1),
    Sketcher.Constraint("Coincident", 9, 2, 10, 1),
    Sketcher.Constraint("Coincident", 10, 2, 11, 1),
    Sketcher.Constraint("Coincident", 11, 2, 12, 1),
    Sketcher.Constraint("Coincident", 12, 2, 13, 1),
    Sketcher.Constraint("Coincident", 13, 2, 14, 1),
    Sketcher.Constraint("Coincident", 14, 2, 15, 1),
    Sketcher.Constraint("Coincident", 15, 2, 16, 1),
    Sketcher.Constraint("Coincident", 16, 2, 17, 1),
    Sketcher.Constraint("Coincident", 17, 2, 8, 1),
    Sketcher.Constraint("Horizontal", 0),
    Sketcher.Constraint("Vertical", 1),
    Sketcher.Constraint("Horizontal", 2),
    Sketcher.Constraint("Vertical", 3),
    Sketcher.Constraint("Horizontal", 4),
    Sketcher.Constraint("Vertical", 5),
    Sketcher.Constraint("Horizontal", 6),
    Sketcher.Constraint("Vertical", 7),
    Sketcher.Constraint("Horizontal", 8),
    Sketcher.Constraint("Vertical", 9),
    Sketcher.Constraint("Horizontal", 10),
    Sketcher.Constraint("Vertical", 11),
    Sketcher.Constraint("Horizontal", 12),
    Sketcher.Constraint("Vertical", 13),
    Sketcher.Constraint("Horizontal", 14),
    Sketcher.Constraint("Vertical", 15),
    Sketcher.Constraint("Horizontal", 16),
    Sketcher.Constraint("Vertical", 17),
    Sketcher.Constraint("Vertical", 3, 2, 6, 2),
    Sketcher.Constraint("Vertical", 9, 2, 12, 2),
    Sketcher.Constraint("Equal", 6, 1),
    Sketcher.Constraint("Equal", 2, 5),
    Sketcher.Constraint("Equal", 3, 7),
    Sketcher.Constraint("Equal", 1, 9),
    Sketcher.Constraint("DistanceX", 0, 2, 0, 1, 40.0),
    Sketcher.Constraint("DistanceX", 4, 1, 4, 2, 5.0),
    Sketcher.Constraint("DistanceX", 8, 2, 8, 1, 60.0),
    Sketcher.Constraint("DistanceX", 10, 1, 10, 2, 12.0),
    Sketcher.Constraint("DistanceY", 11, 2, 11, 1, 7.0),
    Sketcher.Constraint("DistanceY", 13, 2, 13, 1, 6.0),
    Sketcher.Constraint("DistanceY", 15, 1, 15, 2, 4.0),
    Sketcher.Constraint("DistanceX", 8, 2, 0, 2, 29.0),
    Sketcher.Constraint("DistanceY", 8, 2, 6, 2, 2.0),
    Sketcher.Constraint("DistanceX", 0, 2, -1, 1, 279.4242),
    Sketcher.Constraint("DistanceX", 14, 1, 14, 2, 27.001675),
    Sketcher.Constraint("DistanceY", -1, 1, 0, 2, 990.23865),
])
pad3 = body3.newObject("PartDesign::Pad", "Pad002")
pad3.Profile = sketch3
pad3.Length = 25
body4 = doc.addObject("PartDesign::Body", "Body003")

# Sketch on YZ plane
sketch4 = body4.newObject("Sketcher::SketchObject", "Sketch003")
sketch4.AttachmentSupport = (doc.getObject("YZ_Plane003"), [""])
sketch4.MapMode = "FlatFace"
sketch4.addGeometry([
    Part.LineSegment(App.Vector(-281.422525, 983.73865, 0), App.Vector(-281.422525, 987.73865, 0)),  # 0
    Part.LineSegment(App.Vector(-281.422525, 987.73865, 0), App.Vector(-308.4242, 987.73865, 0)),  # 1
    Part.LineSegment(App.Vector(-308.4242, 987.73865, 0), App.Vector(-308.4242, 981.73865, 0)),  # 2
    Part.LineSegment(App.Vector(-308.4242, 981.73865, 0), App.Vector(-296.4242, 981.73865, 0)),  # 3
    Part.LineSegment(App.Vector(-296.4242, 981.73865, 0), App.Vector(-296.4242, 969.73865, 0)),  # 4
    Part.LineSegment(App.Vector(-296.4242, 969.73865, 0), App.Vector(-248.4242, 969.73865, 0)),  # 5
    Part.LineSegment(App.Vector(-248.4242, 969.73865, 0), App.Vector(-248.4242, 983.73865, 0)),  # 6
    Part.LineSegment(App.Vector(-248.4242, 983.73865, 0), App.Vector(-281.422525, 983.73865, 0)),  # 7
], False)
sketch4.addConstraint([
    Sketcher.Constraint("Coincident", 0, 2, 1, 1),
    Sketcher.Constraint("Coincident", 1, 2, 2, 1),
    Sketcher.Constraint("Coincident", 2, 2, 3, 1),
    Sketcher.Constraint("Coincident", 3, 2, 4, 1),
    Sketcher.Constraint("Coincident", 4, 2, 5, 1),
    Sketcher.Constraint("Coincident", 5, 2, 6, 1),
    Sketcher.Constraint("Coincident", 6, 2, 7, 1),
    Sketcher.Constraint("Coincident", 7, 2, 0, 1),
    Sketcher.Constraint("Vertical", 0),
    Sketcher.Constraint("Horizontal", 1),
    Sketcher.Constraint("Vertical", 2),
    Sketcher.Constraint("Horizontal", 3),
    Sketcher.Constraint("Vertical", 4),
    Sketcher.Constraint("Horizontal", 5),
    Sketcher.Constraint("Vertical", 6),
    Sketcher.Constraint("Horizontal", 7),
    Sketcher.Constraint("Equal", 3, 4),
    Sketcher.Constraint("DistanceX", 3, 1, 3, 2, 12.0),
    Sketcher.Constraint("DistanceX", 5, 1, 5, 2, 48.0),
    Sketcher.Constraint("DistanceY", 0, 1, 0, 2, 4.0),
    Sketcher.Constraint("DistanceY", 2, 2, 2, 1, 6.0),
    Sketcher.Constraint("DistanceX", 1, 2, -1, 1, 308.4242),
    Sketcher.Constraint("DistanceX", 1, 2, 1, 1, 27.001675),
    Sketcher.Constraint("DistanceY", -1, 1, 0, 2, 987.73865),
])
pad4 = body4.newObject("PartDesign::Pad", "Pad003")
pad4.Profile = sketch4
pad4.Length = 25

doc.recompute()
